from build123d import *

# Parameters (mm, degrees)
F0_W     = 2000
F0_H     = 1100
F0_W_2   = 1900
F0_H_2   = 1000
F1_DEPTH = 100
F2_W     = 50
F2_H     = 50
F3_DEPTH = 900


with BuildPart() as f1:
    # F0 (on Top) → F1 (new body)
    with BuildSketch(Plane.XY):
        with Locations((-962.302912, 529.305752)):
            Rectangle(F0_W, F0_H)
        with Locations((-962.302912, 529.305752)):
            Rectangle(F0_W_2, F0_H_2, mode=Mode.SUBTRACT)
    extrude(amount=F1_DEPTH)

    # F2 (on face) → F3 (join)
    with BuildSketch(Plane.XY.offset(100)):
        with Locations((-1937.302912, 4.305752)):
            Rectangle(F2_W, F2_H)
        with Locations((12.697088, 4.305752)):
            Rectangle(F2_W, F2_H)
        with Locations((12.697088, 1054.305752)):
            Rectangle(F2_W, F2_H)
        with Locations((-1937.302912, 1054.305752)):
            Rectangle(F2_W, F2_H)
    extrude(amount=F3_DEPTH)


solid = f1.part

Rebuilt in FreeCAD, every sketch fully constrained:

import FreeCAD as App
import Part
import Sketcher

V = App.Vector

doc = App.newDocument("Part")
body = doc.addObject("PartDesign::Body", "Body")

sketch1 = doc.addObject("Sketcher::SketchObject", "Sketch")
body.addObject(sketch1)
sketch1.AttachmentSupport = (doc.XY_Plane, [""])
sketch1.MapMode = "FlatFace"
sketch1.addGeometry(Part.LineSegment(V(-1962, 1079, 0), V(-1962, -21, 0)), False)
sketch1.addGeometry(Part.LineSegment(V(-1962, -21, 0), V(38, -21, 0)), False)
sketch1.addGeometry(Part.LineSegment(V(38, -21, 0), V(38, 1079, 0)), False)
sketch1.addGeometry(Part.LineSegment(V(38, 1079, 0), V(-1962, 1079, 0)), False)
sketch1.addGeometry(Part.LineSegment(V(-12, 29, 0), V(-1912, 29, 0)), False)
sketch1.addGeometry(Part.LineSegment(V(-1912, 29, 0), V(-1912, 1029, 0)), False)
sketch1.addGeometry(Part.LineSegment(V(-1912, 1029, 0), V(-12, 1029, 0)), False)
sketch1.addGeometry(Part.LineSegment(V(-12, 1029, 0), V(-12, 29, 0)), False)
sketch1.addConstraint(Sketcher.Constraint("Coincident", 0, 2, 1, 1))
sketch1.addConstraint(Sketcher.Constraint("Coincident", 1, 2, 2, 1))
sketch1.addConstraint(Sketcher.Constraint("Coincident", 2, 2, 3, 1))
sketch1.addConstraint(Sketcher.Constraint("Coincident", 3, 2, 0, 1))
sketch1.addConstraint(Sketcher.Constraint("Coincident", 4, 2, 5, 1))
sketch1.addConstraint(Sketcher.Constraint("Coincident", 5, 2, 6, 1))
sketch1.addConstraint(Sketcher.Constraint("Coincident", 6, 2, 7, 1))
sketch1.addConstraint(Sketcher.Constraint("Coincident", 7, 2, 4, 1))
sketch1.addConstraint(Sketcher.Constraint("Vertical", 0))
sketch1.addConstraint(Sketcher.Constraint("Horizontal", 1))
sketch1.addConstraint(Sketcher.Constraint("Vertical", 2))
sketch1.addConstraint(Sketcher.Constraint("Horizontal", 3))
sketch1.addConstraint(Sketcher.Constraint("Horizontal", 4))
sketch1.addConstraint(Sketcher.Constraint("Vertical", 5))
sketch1.addConstraint(Sketcher.Constraint("Horizontal", 6))
sketch1.addConstraint(Sketcher.Constraint("Vertical", 7))
sketch1.addConstraint(Sketcher.Constraint("DistanceX", 1, 1, 1, 2, 2000.0))
sketch1.addConstraint(Sketcher.Constraint("DistanceX", 4, 2, 4, 1, 1900.0))
sketch1.addConstraint(Sketcher.Constraint("DistanceY", 0, 2, 0, 1, 1100.0))
sketch1.addConstraint(Sketcher.Constraint("DistanceY", 5, 1, 5, 2, 1000.0))
sketch1.addConstraint(Sketcher.Constraint("DistanceX", 0, 2, 4, 2, 50.0))
sketch1.addConstraint(Sketcher.Constraint("DistanceY", 0, 2, 4, 2, 50.0))
sketch1.addConstraint(Sketcher.Constraint("DistanceX", 0, 2, -1, 1, 1962.302912))
sketch1.addConstraint(Sketcher.Constraint("DistanceY", 0, 2, -1, 1, 20.694248))
pad1 = doc.addObject("PartDesign::Pad", "Pad")
body.addObject(pad1)
pad1.Profile = sketch1
pad1.Length = 100

sketch2 = doc.addObject("Sketcher::SketchObject", "Sketch001")
body.addObject(sketch2)
sketch2.AttachmentSupport = (doc.XY_Plane, [""])
sketch2.MapMode = "FlatFace"
sketch2.AttachmentOffset = App.Placement(V(0, 0, 100), App.Rotation())
sketch2.addGeometry(Part.LineSegment(V(-1962, 29, 0), V(-1962, -21, 0)), False)
sketch2.addGeometry(Part.LineSegment(V(-1962, -21, 0), V(-1912, -21, 0)), False)
sketch2.addGeometry(Part.LineSegment(V(-1912, -21, 0), V(-1912, 29, 0)), False)
sketch2.addGeometry(Part.LineSegment(V(-1912, 29, 0), V(-1962, 29, 0)), False)
sketch2.addGeometry(Part.LineSegment(V(-12, 29, 0), V(-12, -21, 0)), False)
sketch2.addGeometry(Part.LineSegment(V(-12, -21, 0), V(38, -21, 0)), False)
sketch2.addGeometry(Part.LineSegment(V(38, -21, 0), V(38, 29, 0)), False)
sketch2.addGeometry(Part.LineSegment(V(38, 29, 0), V(-12, 29, 0)), False)
sketch2.addGeometry(Part.LineSegment(V(-12, 1079, 0), V(-12, 1029, 0)), False)
sketch2.addGeometry(Part.LineSegment(V(-12, 1029, 0), V(38, 1029, 0)), False)
sketch2.addGeometry(Part.LineSegment(V(38, 1029, 0), V(38, 1079, 0)), False)
sketch2.addGeometry(Part.LineSegment(V(38, 1079, 0), V(-12, 1079, 0)), False)
sketch2.addGeometry(Part.LineSegment(V(-1962, 1079, 0), V(-1962, 1029, 0)), False)
sketch2.addGeometry(Part.LineSegment(V(-1962, 1029, 0), V(-1912, 1029, 0)), False)
sketch2.addGeometry(Part.LineSegment(V(-1912, 1029, 0), V(-1912, 1079, 0)), False)
sketch2.addGeometry(Part.LineSegment(V(-1912, 1079, 0), V(-1962, 1079, 0)), False)
sketch2.addConstraint(Sketcher.Constraint("Coincident", 0, 2, 1, 1))
sketch2.addConstraint(Sketcher.Constraint("Coincident", 1, 2, 2, 1))
sketch2.addConstraint(Sketcher.Constraint("Coincident", 2, 2, 3, 1))
sketch2.addConstraint(Sketcher.Constraint("Coincident", 3, 2, 0, 1))
sketch2.addConstraint(Sketcher.Constraint("Coincident", 4, 2, 5, 1))
sketch2.addConstraint(Sketcher.Constraint("Coincident", 5, 2, 6, 1))
sketch2.addConstraint(Sketcher.Constraint("Coincident", 6, 2, 7, 1))
sketch2.addConstraint(Sketcher.Constraint("Coincident", 7, 2, 4, 1))
sketch2.addConstraint(Sketcher.Constraint("Coincident", 8, 2, 9, 1))
sketch2.addConstraint(Sketcher.Constraint("Coincident", 9, 2, 10, 1))
sketch2.addConstraint(Sketcher.Constraint("Coincident", 10, 2, 11, 1))
sketch2.addConstraint(Sketcher.Constraint("Coincident", 11, 2, 8, 1))
sketch2.addConstraint(Sketcher.Constraint("Coincident", 12, 2, 13, 1))
sketch2.addConstraint(Sketcher.Constraint("Coincident", 13, 2, 14, 1))
sketch2.addConstraint(Sketcher.Constraint("Coincident", 14, 2, 15, 1))
sketch2.addConstraint(Sketcher.Constraint("Coincident", 15, 2, 12, 1))
sketch2.addConstraint(Sketcher.Constraint("Vertical", 0))
sketch2.addConstraint(Sketcher.Constraint("Horizontal", 1))
sketch2.addConstraint(Sketcher.Constraint("Vertical", 2))
sketch2.addConstraint(Sketcher.Constraint("Horizontal", 3))
sketch2.addConstraint(Sketcher.Constraint("Vertical", 4))
sketch2.addConstraint(Sketcher.Constraint("Horizontal", 5))
sketch2.addConstraint(Sketcher.Constraint("Vertical", 6))
sketch2.addConstraint(Sketcher.Constraint("Horizontal", 7))
sketch2.addConstraint(Sketcher.Constraint("Vertical", 8))
sketch2.addConstraint(Sketcher.Constraint("Horizontal", 9))
sketch2.addConstraint(Sketcher.Constraint("Vertical", 10))
sketch2.addConstraint(Sketcher.Constraint("Horizontal", 11))
sketch2.addConstraint(Sketcher.Constraint("Vertical", 12))
sketch2.addConstraint(Sketcher.Constraint("Horizontal", 13))
sketch2.addConstraint(Sketcher.Constraint("Vertical", 14))
sketch2.addConstraint(Sketcher.Constraint("Horizontal", 15))
sketch2.addConstraint(Sketcher.Constraint("Horizontal", 1, 2, 4, 2))
sketch2.addConstraint(Sketcher.Constraint("Horizontal", 3, 2, 6, 2))
sketch2.addConstraint(Sketcher.Constraint("Horizontal", 9, 2, 12, 2))
sketch2.addConstraint(Sketcher.Constraint("Horizontal", 11, 2, 14, 2))
sketch2.addConstraint(Sketcher.Constraint("Vertical", 7, 2, 8, 2))
sketch2.addConstraint(Sketcher.Constraint("Vertical", 6, 2, 9, 2))
sketch2.addConstraint(Sketcher.Constraint("Vertical", 3, 2, 12, 2))
sketch2.addConstraint(Sketcher.Constraint("Vertical", 2, 2, 13, 2))
sketch2.addConstraint(Sketcher.Constraint("Equal", 3, 5))
sketch2.addConstraint(Sketcher.Constraint("Equal", 15, 0))
sketch2.addConstraint(Sketcher.Constraint("Equal", 6, 8))
sketch2.addConstraint(Sketcher.Constraint("DistanceX", 1, 1, 1, 2, 50.0))
sketch2.addConstraint(Sketcher.Constraint("DistanceX", 1, 2, 4, 2, 1900.0))
sketch2.addConstraint(Sketcher.Constraint("DistanceY", 7, 2, 8, 2, 1000.0))
sketch2.addConstraint(Sketcher.Constraint("DistanceX", 0, 2, -1, 1, 1962.302912))
sketch2.addConstraint(Sketcher.Constraint("DistanceY", 0, 2, -1, 1, 20.694248))
pad2 = doc.addObject("PartDesign::Pad", "Pad001")
body.addObject(pad2)
pad2.Profile = sketch2
pad2.Length = 900

doc.recompute()
